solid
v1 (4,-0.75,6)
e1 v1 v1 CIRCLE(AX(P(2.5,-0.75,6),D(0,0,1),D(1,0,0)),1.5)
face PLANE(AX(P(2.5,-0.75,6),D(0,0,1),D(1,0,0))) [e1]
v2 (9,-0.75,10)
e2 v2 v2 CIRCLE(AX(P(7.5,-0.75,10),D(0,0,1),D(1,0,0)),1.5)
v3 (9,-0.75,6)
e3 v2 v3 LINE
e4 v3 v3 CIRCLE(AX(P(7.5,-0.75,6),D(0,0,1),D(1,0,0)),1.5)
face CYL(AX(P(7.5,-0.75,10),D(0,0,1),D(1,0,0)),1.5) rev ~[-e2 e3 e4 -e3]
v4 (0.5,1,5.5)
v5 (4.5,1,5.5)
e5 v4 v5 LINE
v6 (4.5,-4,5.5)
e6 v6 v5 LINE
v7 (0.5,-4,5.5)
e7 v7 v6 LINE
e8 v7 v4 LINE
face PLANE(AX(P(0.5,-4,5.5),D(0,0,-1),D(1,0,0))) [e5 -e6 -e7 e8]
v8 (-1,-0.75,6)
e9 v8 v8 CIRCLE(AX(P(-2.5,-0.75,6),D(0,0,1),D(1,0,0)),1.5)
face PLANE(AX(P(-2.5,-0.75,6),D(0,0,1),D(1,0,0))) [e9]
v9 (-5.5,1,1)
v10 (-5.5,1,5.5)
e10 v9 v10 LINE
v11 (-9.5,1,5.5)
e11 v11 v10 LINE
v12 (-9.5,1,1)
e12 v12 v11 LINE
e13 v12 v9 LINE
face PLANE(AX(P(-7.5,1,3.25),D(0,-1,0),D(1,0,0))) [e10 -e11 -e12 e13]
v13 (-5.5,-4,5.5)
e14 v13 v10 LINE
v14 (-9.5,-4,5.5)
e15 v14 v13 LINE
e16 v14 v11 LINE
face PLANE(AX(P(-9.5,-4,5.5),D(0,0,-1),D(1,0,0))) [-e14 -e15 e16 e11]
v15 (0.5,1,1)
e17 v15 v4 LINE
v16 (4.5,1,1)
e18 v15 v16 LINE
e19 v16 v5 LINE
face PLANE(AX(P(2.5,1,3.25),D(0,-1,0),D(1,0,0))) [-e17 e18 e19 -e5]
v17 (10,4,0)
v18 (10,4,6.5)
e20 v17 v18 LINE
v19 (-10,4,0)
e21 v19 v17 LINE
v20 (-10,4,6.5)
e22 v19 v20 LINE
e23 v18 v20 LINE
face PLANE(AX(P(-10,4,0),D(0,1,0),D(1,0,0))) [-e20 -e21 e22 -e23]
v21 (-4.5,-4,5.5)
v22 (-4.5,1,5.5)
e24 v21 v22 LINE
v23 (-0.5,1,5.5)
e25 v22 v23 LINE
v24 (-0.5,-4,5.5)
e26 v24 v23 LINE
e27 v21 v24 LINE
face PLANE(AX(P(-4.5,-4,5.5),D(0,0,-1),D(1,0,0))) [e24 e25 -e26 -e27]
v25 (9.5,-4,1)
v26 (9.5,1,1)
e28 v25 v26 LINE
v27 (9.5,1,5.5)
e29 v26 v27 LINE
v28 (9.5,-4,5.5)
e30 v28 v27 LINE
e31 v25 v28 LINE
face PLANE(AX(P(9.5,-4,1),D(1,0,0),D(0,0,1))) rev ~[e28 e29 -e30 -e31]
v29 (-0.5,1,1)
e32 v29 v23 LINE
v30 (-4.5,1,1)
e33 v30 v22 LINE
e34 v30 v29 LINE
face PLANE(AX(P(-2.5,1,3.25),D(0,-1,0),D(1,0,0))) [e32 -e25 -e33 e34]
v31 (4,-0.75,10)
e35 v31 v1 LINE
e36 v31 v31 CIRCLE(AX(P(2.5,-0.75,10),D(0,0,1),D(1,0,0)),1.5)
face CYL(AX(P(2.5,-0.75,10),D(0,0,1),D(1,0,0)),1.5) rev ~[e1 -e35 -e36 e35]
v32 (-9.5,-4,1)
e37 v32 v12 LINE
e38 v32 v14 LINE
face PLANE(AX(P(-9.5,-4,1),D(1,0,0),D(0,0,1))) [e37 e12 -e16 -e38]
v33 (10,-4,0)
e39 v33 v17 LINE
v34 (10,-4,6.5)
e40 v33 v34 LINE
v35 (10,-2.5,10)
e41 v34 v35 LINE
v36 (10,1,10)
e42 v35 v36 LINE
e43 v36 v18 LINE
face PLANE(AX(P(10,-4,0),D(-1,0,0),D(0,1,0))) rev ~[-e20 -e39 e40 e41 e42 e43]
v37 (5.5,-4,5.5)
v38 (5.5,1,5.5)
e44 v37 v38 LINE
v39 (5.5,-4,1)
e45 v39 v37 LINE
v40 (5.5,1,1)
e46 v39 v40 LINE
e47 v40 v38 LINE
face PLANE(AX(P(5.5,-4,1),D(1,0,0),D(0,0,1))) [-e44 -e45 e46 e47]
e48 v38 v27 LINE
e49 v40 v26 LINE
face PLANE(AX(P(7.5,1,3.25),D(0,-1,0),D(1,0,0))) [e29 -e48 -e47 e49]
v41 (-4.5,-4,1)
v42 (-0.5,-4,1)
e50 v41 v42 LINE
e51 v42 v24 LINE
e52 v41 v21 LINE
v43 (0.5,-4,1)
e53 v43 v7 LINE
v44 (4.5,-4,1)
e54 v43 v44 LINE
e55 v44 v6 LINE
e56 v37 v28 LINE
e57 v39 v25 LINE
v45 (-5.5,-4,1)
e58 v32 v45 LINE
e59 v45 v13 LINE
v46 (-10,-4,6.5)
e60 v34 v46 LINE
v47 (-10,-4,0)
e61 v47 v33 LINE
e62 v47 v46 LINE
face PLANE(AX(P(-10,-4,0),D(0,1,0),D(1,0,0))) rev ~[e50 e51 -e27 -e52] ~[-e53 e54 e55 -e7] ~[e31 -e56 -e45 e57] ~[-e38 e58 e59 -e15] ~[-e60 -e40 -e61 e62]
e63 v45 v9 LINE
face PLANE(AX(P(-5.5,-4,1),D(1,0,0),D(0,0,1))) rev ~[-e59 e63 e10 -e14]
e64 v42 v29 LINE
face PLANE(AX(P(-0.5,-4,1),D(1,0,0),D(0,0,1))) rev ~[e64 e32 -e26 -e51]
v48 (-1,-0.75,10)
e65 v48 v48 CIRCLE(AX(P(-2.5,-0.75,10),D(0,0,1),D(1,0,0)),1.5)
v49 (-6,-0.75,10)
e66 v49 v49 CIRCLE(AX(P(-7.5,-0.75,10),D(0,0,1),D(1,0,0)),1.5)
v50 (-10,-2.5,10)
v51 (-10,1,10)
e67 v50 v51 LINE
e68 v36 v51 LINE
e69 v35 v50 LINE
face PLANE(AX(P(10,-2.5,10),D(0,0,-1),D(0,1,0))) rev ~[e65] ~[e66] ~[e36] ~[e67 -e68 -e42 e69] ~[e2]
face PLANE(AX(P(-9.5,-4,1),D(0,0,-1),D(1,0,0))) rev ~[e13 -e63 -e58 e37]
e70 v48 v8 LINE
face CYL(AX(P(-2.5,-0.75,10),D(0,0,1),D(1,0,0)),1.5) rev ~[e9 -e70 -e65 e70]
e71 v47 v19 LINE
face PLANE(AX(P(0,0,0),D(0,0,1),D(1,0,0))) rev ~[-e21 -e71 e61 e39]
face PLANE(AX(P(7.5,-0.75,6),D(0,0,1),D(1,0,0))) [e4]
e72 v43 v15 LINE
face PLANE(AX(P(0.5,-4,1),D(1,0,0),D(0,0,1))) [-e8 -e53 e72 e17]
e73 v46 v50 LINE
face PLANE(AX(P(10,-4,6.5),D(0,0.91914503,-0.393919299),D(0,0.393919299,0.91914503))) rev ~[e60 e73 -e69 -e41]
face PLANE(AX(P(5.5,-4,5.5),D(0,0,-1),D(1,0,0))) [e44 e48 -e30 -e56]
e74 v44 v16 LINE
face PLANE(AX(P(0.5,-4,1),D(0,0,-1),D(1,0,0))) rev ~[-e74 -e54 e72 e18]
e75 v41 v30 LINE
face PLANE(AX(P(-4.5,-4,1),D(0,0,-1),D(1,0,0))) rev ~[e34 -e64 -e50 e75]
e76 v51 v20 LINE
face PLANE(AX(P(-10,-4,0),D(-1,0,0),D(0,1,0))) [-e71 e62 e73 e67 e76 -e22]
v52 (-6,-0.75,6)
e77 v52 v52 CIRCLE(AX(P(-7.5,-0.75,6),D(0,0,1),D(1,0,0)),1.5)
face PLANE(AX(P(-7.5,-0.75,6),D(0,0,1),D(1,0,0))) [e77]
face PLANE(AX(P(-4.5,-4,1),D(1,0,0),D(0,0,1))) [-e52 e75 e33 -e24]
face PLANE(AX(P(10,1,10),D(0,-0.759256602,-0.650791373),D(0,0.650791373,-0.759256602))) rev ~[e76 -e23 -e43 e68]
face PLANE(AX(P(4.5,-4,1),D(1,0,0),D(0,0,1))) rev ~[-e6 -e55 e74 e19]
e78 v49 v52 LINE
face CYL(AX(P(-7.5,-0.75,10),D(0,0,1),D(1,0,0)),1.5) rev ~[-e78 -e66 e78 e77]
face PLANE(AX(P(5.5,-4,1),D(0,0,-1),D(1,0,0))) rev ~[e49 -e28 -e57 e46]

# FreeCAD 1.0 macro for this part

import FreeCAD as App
import Part
import Sketcher
Q = App.Units.Quantity


def add_polygon(sketch, points):
    """Adds a closed chain of lines whose ends are joined by coincident constraints."""
    first, n = sketch.GeometryCount, len(points)
    for a, b in zip(points, points[1:] + points[:1]):
        sketch.addGeometry(Part.LineSegment(App.Vector(*a, 0), App.Vector(*b, 0)), False)
    for i in range(n):
        sketch.addConstraint(Sketcher.Constraint("Coincident", first + i, 2, first + (i + 1) % n, 1))

doc = App.newDocument("Part")
body = doc.addObject("PartDesign::Body", "Body")

# Sketch on XY plane
sketch1 = body.newObject("Sketcher::SketchObject", "Sketch")
sketch1.AttachmentSupport = (doc.getObject("XY_Plane"), [""])
sketch1.MapMode = "FlatFace"
add_polygon(sketch1, [(-10, 4), (-10, -4), (10, -4), (10, 4)])  # lines 0-3
sketch1.addConstraint([
    Sketcher.Constraint("Vertical", 0),
    Sketcher.Constraint("Horizontal", 1),
    Sketcher.Constraint("Vertical", 2),
    Sketcher.Constraint("Horizontal", 3),
    Sketcher.Constraint("Symmetric", 0, 2, 2, 2, -1, 1),
    Sketcher.Constraint("DistanceX", 1, 1, 1, 2, Q("20 mm")),
    Sketcher.Constraint("DistanceY", 0, 2, 0, 1, Q("8 mm")),
])
pad1 = body.newObject("PartDesign::Pad", "Pad")
pad1.Profile = sketch1
pad1.Length = 10

# Sketch on YZ plane
sketch2 = body.newObject("Sketcher::SketchObject", "Sketch001")
sketch2.AttachmentSupport = (doc.getObject("YZ_Plane"), [""])
sketch2.MapMode = "FlatFace"
sketch2.AttachmentOffset = App.Placement(App.Vector(0, 0, 10), App.Rotation())
add_polygon(sketch2, [(-4, 6.5), (-2.5, 10), (1, 10), (4, 6.5), (5, 6.5), (5, 11), (-5, 11), (-5, 6.5)])  # lines 0-7
sketch2.addConstraint([
    Sketcher.Constraint("Horizontal", 1),
    Sketcher.Constraint("Horizontal", 3),
    Sketcher.Constraint("Vertical", 4),
    Sketcher.Constraint("Horizontal", 5),
    Sketcher.Constraint("Vertical", 6),
    Sketcher.Constraint("Horizontal", 7),
    Sketcher.Constraint("Symmetric", 3, 2, 6, 2, -2),
    Sketcher.Constraint("Equal", 3, 7),
    Sketcher.Constraint("DistanceX", 3, 1, 3, 2, Q("1 mm")),
    Sketcher.Constraint("DistanceX", 5, 2, 5, 1, Q("10 mm")),
    Sketcher.Constraint("DistanceX", 1, 1, 1, 2, Q("3.5 mm")),
    Sketcher.Constraint("DistanceY", 4, 1, 4, 2, Q("4.5 mm")),
    Sketcher.Constraint("DistanceY", -1, 1, 0, 2, Q("10 mm")),
    Sketcher.Constraint("DistanceX", -1, 1, 1, 2, Q("1 mm")),
    Sketcher.Constraint("DistanceY", -1, 1, 4, 2, Q("11 mm")),
])
pocket1 = body.newObject("PartDesign::Pocket", "Pocket")
pocket1.Profile = sketch2
pocket1.Length = 20

# Sketch on XY plane
sketch3 = body.newObject("Sketcher::SketchObject", "Sketch002")
sketch3.AttachmentSupport = (doc.getObject("XY_Plane"), [""])
sketch3.MapMode = "FlatFace"
sketch3.AttachmentOffset = App.Placement(App.Vector(0, 0, 10), App.Rotation())
sketch3.addGeometry([
    Part.Circle(App.Vector(-7.5, -0.75, 0), App.Vector(0, 0, 1), 1.5),
    Part.Circle(App.Vector(-2.5, -0.75, 0), App.Vector(0, 0, 1), 1.5),
    Part.Circle(App.Vector(2.5, -0.75, 0), App.Vector(0, 0, 1), 1.5),
    Part.Circle(App.Vector(7.5, -0.75, 0), App.Vector(0, 0, 1), 1.5),
], False)
sketch3.addConstraint([
    Sketcher.Constraint("Equal", 0, 1),
    Sketcher.Constraint("Equal", 1, 2),
    Sketcher.Constraint("Equal", 2, 3),
    Sketcher.Constraint("Symmetric", 1, 3, 2, 3, -2),
    Sketcher.Constraint("Symmetric", 0, 3, 3, 3, -2),
    Sketcher.Constraint("Horizontal", 0, 3, 1, 3),
    Sketcher.Constraint("Diameter", 0, Q("3 mm")),
    Sketcher.Constraint("DistanceX", 0, 3, 1, 3, Q("5 mm")),
    Sketcher.Constraint("DistanceX", 1, 3, 2, 3, Q("5 mm")),
    Sketcher.Constraint("DistanceY", 0, 3, -1, 1, Q("0.75 mm")),
])
pocket2 = body.newObject("PartDesign::Pocket", "Pocket001")
pocket2.Profile = sketch3
pocket2.Length = 4

# Sketch on XZ plane
sketch4 = body.newObject("Sketcher::SketchObject", "Sketch003")
sketch4.AttachmentSupport = (doc.getObject("XZ_Plane"), [""])
sketch4.MapMode = "FlatFace"
sketch4.AttachmentOffset = App.Placement(App.Vector(0, 0, 4), App.Rotation())
add_polygon(sketch4, [(-9.5, 5.5), (-9.5, 1), (-5.5, 1), (-5.5, 5.5)])  # lines 0-3
add_polygon(sketch4, [(-4.5, 5.5), (-4.5, 1), (-0.5, 1), (-0.5, 5.5)])  # lines 4-7
add_polygon(sketch4, [(0.5, 5.5), (0.5, 1), (4.5, 1), (4.5, 5.5)])  # lines 8-11
add_polygon(sketch4, [(5.5, 5.5), (5.5, 1), (9.5, 1), (9.5, 5.5)])  # lines 12-15
sketch4.addConstraint([
    Sketcher.Constraint("Vertical", 0),
    Sketcher.Constraint("Horizontal", 1),
    Sketcher.Constraint("Vertical", 2),
    Sketcher.Constraint("Horizontal", 3),
    Sketcher.Constraint("Vertical", 4),
    Sketcher.Constraint("Horizontal", 5),
    Sketcher.Constraint("Vertical", 6),
    Sketcher.Constraint("Horizontal", 7),
    Sketcher.Constraint("Vertical", 8),
    Sketcher.Constraint("Horizontal", 9),
    Sketcher.Constraint("Vertical", 10),
    Sketcher.Constraint("Horizontal", 11),
    Sketcher.Constraint("Vertical", 12),
    Sketcher.Constraint("Horizontal", 13),
    Sketcher.Constraint("Vertical", 14),
    Sketcher.Constraint("Horizontal", 15),
    Sketcher.Constraint("Symmetric", 5, 2, 8, 2, -2),
    Sketcher.Constraint("Symmetric", 7, 2, 10, 2, -2),
    Sketcher.Constraint("Symmetric", 1, 2, 12, 2, -2),
    Sketcher.Constraint("Symmetric", 3, 2, 14, 2, -2),
    Sketcher.Constraint("Horizontal", 1, 2, 4, 2),
    Sketcher.Constraint("Horizontal", 3, 2, 6, 2),
    Sketcher.Constraint("Equal", 3, 5),
    Sketcher.Constraint("DistanceX", 1, 1, 1, 2, Q("4 mm")),
    Sketcher.Constraint("DistanceY", 0, 2, 0, 1, Q("4.5 mm")),
    Sketcher.Constraint("DistanceY", -1, 1, 0, 2, Q("1 mm")),
    Sketcher.Constraint("DistanceX", 1, 2, 4, 2, Q("1 mm")),
    Sketcher.Constraint("DistanceX", 5, 2, 8, 2, Q("1 mm")),
])
pocket3 = body.newObject("PartDesign::Pocket", "Pocket002")
pocket3.Profile = sketch4
pocket3.Length = 5

doc.recompute()
